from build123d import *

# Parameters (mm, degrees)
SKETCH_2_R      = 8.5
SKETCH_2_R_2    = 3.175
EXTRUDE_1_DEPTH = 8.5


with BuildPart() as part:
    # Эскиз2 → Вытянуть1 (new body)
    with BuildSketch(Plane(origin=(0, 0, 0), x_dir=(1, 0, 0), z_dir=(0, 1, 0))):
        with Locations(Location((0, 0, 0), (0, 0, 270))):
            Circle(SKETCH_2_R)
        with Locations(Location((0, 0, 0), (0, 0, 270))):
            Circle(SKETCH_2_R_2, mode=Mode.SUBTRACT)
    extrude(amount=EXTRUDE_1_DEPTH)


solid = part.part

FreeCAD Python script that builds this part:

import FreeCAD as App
import Part
import Sketcher

V = App.Vector
Q = App.Units.Quantity

doc = App.newDocument("Part")
params = doc.addObject("Spreadsheet::Sheet", "Params")
for row, (alias, value) in enumerate([
    ("sketch1_diameter", "17 mm"),
    ("sketch1_diameter2", "6.35 mm"),
    ("pad1_length", "8.5 mm"),
], start=1):
    params.set(f"A{row}", alias)
    params.set(f"B{row}", "=" + value)
    params.setAlias(f"B{row}", alias)

body = doc.addObject("PartDesign::Body", "Body")

# Sketch on XZ plane
sketch1 = body.newObject("Sketcher::SketchObject", "Sketch")
sketch1.AttachmentSupport = (doc.getObject("XZ_Plane"), [""])
sketch1.MapMode = "FlatFace"
sketch1.addGeometry(Part.Circle(V(0, 0, 0), V(0, 0, 1), 8.5), False)
sketch1.addGeometry(Part.Circle(V(0, 0, 0), V(0, 0, 1), 3.175), False)
sketch1.addConstraint(Sketcher.Constraint("Coincident", 0, 3, -1, 1))
sketch1.addConstraint(Sketcher.Constraint("Coincident", 1, 3, -1, 1))
sketch1.addConstraint(Sketcher.Constraint("Diameter", 0, Q("17 mm")))
sketch1.addConstraint(Sketcher.Constraint("Diameter", 1, Q("6.35 mm")))
sketch1.setExpression("Constraints[2]", "Params.sketch1_diameter")
sketch1.setExpression("Constraints[3]", "Params.sketch1_diameter2")
pad1 = body.newObject("PartDesign::Pad", "Pad")
pad1.Profile = sketch1
pad1.setExpression("Length", "Params.pad1_length")
pad1.Reversed = True

doc.recompute()
